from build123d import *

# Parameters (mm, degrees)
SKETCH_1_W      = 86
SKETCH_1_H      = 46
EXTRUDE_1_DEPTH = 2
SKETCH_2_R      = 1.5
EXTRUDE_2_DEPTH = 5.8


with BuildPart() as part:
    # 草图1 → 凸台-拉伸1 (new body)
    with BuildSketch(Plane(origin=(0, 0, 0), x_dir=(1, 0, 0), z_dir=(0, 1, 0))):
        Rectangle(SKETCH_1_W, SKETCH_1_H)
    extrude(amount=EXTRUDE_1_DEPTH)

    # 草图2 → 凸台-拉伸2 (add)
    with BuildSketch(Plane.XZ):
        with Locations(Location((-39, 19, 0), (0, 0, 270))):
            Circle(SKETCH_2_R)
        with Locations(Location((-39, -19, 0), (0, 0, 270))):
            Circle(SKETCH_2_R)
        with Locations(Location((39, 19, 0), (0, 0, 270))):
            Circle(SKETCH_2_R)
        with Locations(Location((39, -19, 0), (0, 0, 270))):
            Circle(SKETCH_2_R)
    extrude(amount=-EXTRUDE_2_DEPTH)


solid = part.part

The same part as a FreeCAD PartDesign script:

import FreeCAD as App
import Part
import Sketcher
Q = App.Units.Quantity


def add_polygon(sketch, points):
    """Adds a closed chain of lines whose ends are joined by coincident constraints."""
    first, n = sketch.GeometryCount, len(points)
    for a, b in zip(points, points[1:] + points[:1]):
        sketch.addGeometry(Part.LineSegment(App.Vector(*a, 0), App.Vector(*b, 0)), False)
    for i in range(n):
        sketch.addConstraint(Sketcher.Constraint("Coincident", first + i, 2, first + (i + 1) % n, 1))

doc = App.newDocument("Part")
body = doc.addObject("PartDesign::Body", "Body")

# Sketch on XZ plane
sketch1 = body.newObject("Sketcher::SketchObject", "Sketch")
sketch1.AttachmentSupport = (doc.getObject("XZ_Plane"), [""])
sketch1.MapMode = "FlatFace"
add_polygon(sketch1, [(-43, -23), (-43, 23), (43, 23), (43, -23)])  # lines 0-3
sketch1.addConstraint(Sketcher.Constraint("Vertical", 0))
sketch1.addConstraint(Sketcher.Constraint("Horizontal", 1))
sketch1.addConstraint(Sketcher.Constraint("Vertical", 2))
sketch1.addConstraint(Sketcher.Constraint("Horizontal", 3))
sketch1.addConstraint(Sketcher.Constraint("Symmetric", 0, 2, 2, 2, -1, 1))
sketch1.addConstraint(Sketcher.Constraint("DistanceX", 1, 1, 1, 2, Q("86 mm")))
sketch1.addConstraint(Sketcher.Constraint("DistanceY", 0, 1, 0, 2, Q("46 mm")))
pad1 = body.newObject("PartDesign::Pad", "Pad")
pad1.Profile = sketch1
pad1.Length = 2
pad1.Reversed = True

# Sketch on XZ plane
sketch2 = body.newObject("Sketcher::SketchObject", "Sketch001")
sketch2.AttachmentSupport = (doc.getObject("XZ_Plane"), [""])
sketch2.MapMode = "FlatFace"
sketch2.addGeometry(Part.Circle(App.Vector(-39, 19, 0), App.Vector(0, 0, 1), 1.5), False)
sketch2.addGeometry(Part.Circle(App.Vector(-39, -19, 0), App.Vector(0, 0, 1), 1.5), False)
sketch2.addGeometry(Part.Circle(App.Vector(39, 19, 0), App.Vector(0, 0, 1), 1.5), False)
sketch2.addGeometry(Part.Circle(App.Vector(39, -19, 0), App.Vector(0, 0, 1), 1.5), False)
sketch2.addConstraint(Sketcher.Constraint("Equal", 0, 1))
sketch2.addConstraint(Sketcher.Constraint("Equal", 1, 2))
sketch2.addConstraint(Sketcher.Constraint("Equal", 2, 3))
sketch2.addConstraint(Sketcher.Constraint("Symmetric", 1, 3, 2, 3, -1, 1))
sketch2.addConstraint(Sketcher.Constraint("Symmetric", 0, 3, 3, 3, -1, 1))
sketch2.addConstraint(Sketcher.Constraint("Symmetric", 0, 3, 2, 3, -2))
sketch2.addConstraint(Sketcher.Constraint("Diameter", 0, Q("3 mm")))
sketch2.addConstraint(Sketcher.Constraint("DistanceX", 0, 3, -1, 1, Q("39 mm")))
sketch2.addConstraint(Sketcher.Constraint("DistanceY", -1, 1, 0, 3, Q("19 mm")))
pad2 = body.newObject("PartDesign::Pad", "Pad001")
pad2.Profile = sketch2
pad2.Length = 5.8
pad2.Reversed = True

doc.recompute()
